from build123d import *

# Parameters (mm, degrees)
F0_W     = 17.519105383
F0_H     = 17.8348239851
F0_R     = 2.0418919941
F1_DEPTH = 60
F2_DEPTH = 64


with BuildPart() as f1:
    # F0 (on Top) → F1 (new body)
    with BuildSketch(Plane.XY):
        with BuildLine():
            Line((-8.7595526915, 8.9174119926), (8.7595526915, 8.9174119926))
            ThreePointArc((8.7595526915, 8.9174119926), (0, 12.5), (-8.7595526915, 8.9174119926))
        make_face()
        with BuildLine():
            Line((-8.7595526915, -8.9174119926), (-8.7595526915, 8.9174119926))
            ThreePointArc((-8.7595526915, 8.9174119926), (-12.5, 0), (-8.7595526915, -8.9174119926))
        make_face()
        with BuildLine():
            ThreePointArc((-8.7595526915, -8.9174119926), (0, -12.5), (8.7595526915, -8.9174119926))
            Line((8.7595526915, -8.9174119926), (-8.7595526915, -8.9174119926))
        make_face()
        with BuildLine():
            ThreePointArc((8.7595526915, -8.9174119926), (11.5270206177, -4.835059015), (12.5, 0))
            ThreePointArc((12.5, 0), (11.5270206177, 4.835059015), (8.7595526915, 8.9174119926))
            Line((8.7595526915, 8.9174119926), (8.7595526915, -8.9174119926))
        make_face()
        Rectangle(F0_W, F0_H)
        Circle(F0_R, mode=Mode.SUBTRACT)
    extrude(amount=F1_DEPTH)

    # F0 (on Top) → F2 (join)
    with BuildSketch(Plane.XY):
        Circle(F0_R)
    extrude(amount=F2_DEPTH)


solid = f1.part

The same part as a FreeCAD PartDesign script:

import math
import FreeCAD as App
import Part
import Sketcher

V = App.Vector
Q = App.Units.Quantity

doc = App.newDocument("Part")
body = doc.addObject("PartDesign::Body", "Body")

# Sketch on XY plane
sketch1 = body.newObject("Sketcher::SketchObject", "Sketch")
sketch1.AttachmentSupport = (doc.getObject("XY_Plane"), [""])
sketch1.MapMode = "FlatFace"
sketch1.addGeometry([
    Part.ArcOfCircle(Part.Circle(V(0, 0, 0), V(0, 0, 1), 12.5), math.radians(46), math.radians(134)),  # 0
    Part.ArcOfCircle(Part.Circle(V(0, 0, 0), V(0, 0, 1), 12.5), math.radians(134), math.radians(226)),  # 1
    Part.ArcOfCircle(Part.Circle(V(0, 0, 0), V(0, 0, 1), 12.5), math.radians(-134), math.radians(-46)),  # 2
    Part.ArcOfCircle(Part.Circle(V(0, 0, 0), V(0, 0, 1), 12.5), math.radians(-46), math.radians(0)),  # 3
    Part.ArcOfCircle(Part.Circle(V(0, 0, 0), V(0, 0, 1), 12.5), math.radians(0), math.radians(46)),  # 4
    Part.Circle(V(0, 0, 0), V(0, 0, 1), 2),  # 5
], False)
sketch1.addConstraint([
    Sketcher.Constraint("Tangent", 0, 2, 1, 1),
    Sketcher.Constraint("Tangent", 1, 2, 2, 1),
    Sketcher.Constraint("Tangent", 2, 2, 3, 1),
    Sketcher.Constraint("Tangent", 3, 2, 4, 1),
    Sketcher.Constraint("Tangent", 4, 2, 0, 1),
    Sketcher.Constraint("Coincident", 0, 3, -1, 1),
    Sketcher.Constraint("Coincident", 2, 3, -1, 1),
    Sketcher.Constraint("Coincident", 5, 3, -1, 1),
    Sketcher.Constraint("PointOnObject", 3, 2, -1),
    Sketcher.Constraint("Horizontal", 1, 2, 2, 2),
    Sketcher.Constraint("Horizontal", 0, 2, 4, 2),
    Sketcher.Constraint("Vertical", 0, 2, 1, 2),
    Sketcher.Constraint("Radius", 0, Q("12.5 mm")),
    Sketcher.Constraint("Diameter", 5, Q("4.083784 mm")),
    Sketcher.Constraint("DistanceY", -1, 1, 0, 2, Q("8.917412 mm")),
])
pad1 = body.newObject("PartDesign::Pad", "Pad")
pad1.Profile = sketch1
pad1.Length = 60

# Sketch on XY plane
sketch2 = body.newObject("Sketcher::SketchObject", "Sketch001")
sketch2.AttachmentSupport = (doc.getObject("XY_Plane"), [""])
sketch2.MapMode = "FlatFace"
sketch2.addGeometry(Part.Circle(V(0, 0, 0), V(0, 0, 1), 2), False)
sketch2.addConstraint([
    Sketcher.Constraint("Coincident", 0, 3, -1, 1),
    Sketcher.Constraint("Diameter", 0, Q("4.083784 mm")),
])
pad2 = body.newObject("PartDesign::Pad", "Pad001")
pad2.Profile = sketch2
pad2.Length = 64

doc.recompute()
